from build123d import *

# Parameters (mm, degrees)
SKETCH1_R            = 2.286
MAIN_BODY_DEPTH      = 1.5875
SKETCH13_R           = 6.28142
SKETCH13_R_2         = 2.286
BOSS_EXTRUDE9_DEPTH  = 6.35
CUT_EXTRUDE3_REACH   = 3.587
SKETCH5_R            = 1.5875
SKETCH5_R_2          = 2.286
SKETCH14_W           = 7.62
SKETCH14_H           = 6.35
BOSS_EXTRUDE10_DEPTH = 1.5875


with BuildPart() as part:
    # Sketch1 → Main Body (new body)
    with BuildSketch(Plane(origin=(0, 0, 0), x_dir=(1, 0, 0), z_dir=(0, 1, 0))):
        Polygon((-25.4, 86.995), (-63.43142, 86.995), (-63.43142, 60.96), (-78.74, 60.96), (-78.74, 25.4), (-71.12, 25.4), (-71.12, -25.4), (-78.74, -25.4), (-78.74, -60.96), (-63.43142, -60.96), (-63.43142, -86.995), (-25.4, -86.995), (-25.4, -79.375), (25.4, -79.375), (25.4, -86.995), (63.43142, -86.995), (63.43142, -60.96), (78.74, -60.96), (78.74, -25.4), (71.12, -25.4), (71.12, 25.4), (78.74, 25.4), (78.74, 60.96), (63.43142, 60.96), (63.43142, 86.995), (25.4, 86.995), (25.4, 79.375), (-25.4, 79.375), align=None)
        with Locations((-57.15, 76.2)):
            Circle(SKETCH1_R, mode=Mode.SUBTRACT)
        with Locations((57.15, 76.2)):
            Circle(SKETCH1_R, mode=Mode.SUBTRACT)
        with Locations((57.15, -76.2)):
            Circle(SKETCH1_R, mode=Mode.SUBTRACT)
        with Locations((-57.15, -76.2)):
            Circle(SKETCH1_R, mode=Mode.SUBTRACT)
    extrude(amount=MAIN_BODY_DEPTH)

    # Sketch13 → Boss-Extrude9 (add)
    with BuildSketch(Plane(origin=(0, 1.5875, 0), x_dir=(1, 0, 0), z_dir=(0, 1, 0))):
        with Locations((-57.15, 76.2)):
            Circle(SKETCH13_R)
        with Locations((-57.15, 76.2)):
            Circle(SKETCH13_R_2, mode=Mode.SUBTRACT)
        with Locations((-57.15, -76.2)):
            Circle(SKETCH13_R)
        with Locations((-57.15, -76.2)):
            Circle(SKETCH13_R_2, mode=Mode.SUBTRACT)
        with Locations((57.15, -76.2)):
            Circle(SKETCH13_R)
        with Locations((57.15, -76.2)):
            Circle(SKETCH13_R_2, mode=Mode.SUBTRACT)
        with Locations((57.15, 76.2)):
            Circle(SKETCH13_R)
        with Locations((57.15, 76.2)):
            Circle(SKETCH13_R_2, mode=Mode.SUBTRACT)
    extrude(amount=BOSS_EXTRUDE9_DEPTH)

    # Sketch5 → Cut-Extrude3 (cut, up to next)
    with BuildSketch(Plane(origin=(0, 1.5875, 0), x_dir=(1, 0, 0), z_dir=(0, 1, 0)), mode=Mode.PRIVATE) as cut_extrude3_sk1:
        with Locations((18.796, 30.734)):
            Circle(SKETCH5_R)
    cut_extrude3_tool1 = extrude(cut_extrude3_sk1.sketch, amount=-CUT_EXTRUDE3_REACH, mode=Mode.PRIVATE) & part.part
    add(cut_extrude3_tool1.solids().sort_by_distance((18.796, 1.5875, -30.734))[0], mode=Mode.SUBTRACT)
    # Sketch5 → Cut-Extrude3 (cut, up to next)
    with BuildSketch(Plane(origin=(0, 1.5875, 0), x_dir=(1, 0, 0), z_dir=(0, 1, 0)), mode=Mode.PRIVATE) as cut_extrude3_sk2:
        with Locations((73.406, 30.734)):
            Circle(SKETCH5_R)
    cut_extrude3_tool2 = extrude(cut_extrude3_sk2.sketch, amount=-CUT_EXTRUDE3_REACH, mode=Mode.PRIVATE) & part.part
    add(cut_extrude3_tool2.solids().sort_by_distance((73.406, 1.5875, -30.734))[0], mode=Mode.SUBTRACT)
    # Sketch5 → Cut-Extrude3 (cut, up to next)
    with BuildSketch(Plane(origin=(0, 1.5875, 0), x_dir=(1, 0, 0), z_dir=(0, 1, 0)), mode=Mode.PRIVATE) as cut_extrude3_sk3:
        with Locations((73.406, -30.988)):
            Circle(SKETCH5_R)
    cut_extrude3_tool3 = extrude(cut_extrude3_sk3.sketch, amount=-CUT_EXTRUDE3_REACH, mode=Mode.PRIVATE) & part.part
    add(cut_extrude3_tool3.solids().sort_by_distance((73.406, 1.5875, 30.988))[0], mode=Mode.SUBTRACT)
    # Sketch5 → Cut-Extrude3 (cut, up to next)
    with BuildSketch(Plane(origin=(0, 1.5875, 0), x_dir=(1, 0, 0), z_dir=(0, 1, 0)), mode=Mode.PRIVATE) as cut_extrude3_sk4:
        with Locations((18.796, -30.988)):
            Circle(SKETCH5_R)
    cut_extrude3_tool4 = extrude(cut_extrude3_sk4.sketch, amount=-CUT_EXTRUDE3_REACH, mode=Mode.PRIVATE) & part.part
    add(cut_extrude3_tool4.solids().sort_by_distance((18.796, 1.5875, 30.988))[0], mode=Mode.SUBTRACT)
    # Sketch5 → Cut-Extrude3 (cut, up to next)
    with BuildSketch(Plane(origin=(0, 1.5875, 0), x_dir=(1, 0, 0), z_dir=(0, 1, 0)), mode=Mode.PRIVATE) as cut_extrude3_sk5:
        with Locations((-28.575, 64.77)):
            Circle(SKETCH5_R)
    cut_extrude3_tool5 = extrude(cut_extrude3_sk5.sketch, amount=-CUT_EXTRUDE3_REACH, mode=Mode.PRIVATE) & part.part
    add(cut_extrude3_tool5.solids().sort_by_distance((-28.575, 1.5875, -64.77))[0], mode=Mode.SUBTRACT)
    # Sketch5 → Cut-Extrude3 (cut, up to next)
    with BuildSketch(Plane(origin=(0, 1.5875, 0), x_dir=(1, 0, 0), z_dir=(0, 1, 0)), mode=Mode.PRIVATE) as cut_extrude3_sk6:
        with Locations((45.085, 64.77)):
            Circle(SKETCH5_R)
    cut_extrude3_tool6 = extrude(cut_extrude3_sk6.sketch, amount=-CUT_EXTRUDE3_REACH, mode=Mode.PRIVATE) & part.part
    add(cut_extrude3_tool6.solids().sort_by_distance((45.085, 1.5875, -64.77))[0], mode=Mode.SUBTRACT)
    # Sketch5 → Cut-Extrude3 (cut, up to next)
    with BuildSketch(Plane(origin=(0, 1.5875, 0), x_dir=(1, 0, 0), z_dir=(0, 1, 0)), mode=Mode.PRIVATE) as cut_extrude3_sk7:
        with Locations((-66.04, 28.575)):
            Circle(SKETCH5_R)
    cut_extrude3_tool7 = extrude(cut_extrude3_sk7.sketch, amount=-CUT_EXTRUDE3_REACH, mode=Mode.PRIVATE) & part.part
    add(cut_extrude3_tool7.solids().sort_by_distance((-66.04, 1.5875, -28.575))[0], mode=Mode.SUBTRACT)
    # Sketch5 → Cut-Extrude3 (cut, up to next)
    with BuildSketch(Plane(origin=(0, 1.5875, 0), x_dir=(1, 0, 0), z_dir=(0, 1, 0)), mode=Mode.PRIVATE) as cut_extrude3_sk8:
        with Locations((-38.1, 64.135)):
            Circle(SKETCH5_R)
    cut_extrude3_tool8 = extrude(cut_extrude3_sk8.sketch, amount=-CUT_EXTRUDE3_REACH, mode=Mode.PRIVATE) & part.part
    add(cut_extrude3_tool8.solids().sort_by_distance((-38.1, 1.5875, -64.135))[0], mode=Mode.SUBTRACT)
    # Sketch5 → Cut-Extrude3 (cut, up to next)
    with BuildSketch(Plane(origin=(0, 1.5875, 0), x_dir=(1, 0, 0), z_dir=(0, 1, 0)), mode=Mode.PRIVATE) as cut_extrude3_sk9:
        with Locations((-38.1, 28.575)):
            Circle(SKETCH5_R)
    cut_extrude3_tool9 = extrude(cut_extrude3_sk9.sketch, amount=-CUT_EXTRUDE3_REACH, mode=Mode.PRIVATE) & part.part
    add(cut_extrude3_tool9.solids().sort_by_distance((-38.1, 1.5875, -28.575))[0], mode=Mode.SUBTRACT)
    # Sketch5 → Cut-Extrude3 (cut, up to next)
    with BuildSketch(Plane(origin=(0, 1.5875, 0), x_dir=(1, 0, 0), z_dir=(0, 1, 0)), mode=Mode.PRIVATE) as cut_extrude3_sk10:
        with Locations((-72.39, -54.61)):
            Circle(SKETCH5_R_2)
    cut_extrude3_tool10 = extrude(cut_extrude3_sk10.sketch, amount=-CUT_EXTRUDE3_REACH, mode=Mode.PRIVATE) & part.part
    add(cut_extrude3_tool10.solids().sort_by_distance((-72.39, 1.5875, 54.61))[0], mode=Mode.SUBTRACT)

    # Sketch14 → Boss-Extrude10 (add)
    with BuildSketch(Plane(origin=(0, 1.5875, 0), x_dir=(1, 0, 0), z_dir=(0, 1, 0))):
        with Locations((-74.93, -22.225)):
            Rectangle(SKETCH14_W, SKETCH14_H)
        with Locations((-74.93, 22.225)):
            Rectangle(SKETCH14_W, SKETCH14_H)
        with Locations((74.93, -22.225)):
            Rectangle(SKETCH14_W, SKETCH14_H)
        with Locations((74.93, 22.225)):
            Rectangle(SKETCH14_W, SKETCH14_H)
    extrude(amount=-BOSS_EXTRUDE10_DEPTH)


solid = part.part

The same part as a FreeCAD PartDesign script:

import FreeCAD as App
import Part
import Sketcher
from FreeCAD import Vector
Q = App.Units.Quantity


def add_polygon(sketch, points):
    """Adds a closed chain of lines whose ends are joined by coincident constraints."""
    first, n = sketch.GeometryCount, len(points)
    for a, b in zip(points, points[1:] + points[:1]):
        sketch.addGeometry(Part.LineSegment(App.Vector(*a, 0), App.Vector(*b, 0)), False)
    for i in range(n):
        sketch.addConstraint(Sketcher.Constraint("Coincident", first + i, 2, first + (i + 1) % n, 1))

doc = App.newDocument("Part")
body = doc.addObject("PartDesign::Body", "Body")

# Sketch on XZ plane
sketch1 = doc.addObject("Sketcher::SketchObject", "Sketch")
body.addObject(sketch1)
sketch1.AttachmentSupport = (doc.XZ_Plane, [""])
sketch1.MapMode = "FlatFace"
add_polygon(sketch1, [(-25.4, -87), (-63.4, -87), (-63.4, -61), (-78.7, -61), (-78.7, -25.4), (-71.1, -25.4), (-71.1, 25.4), (-78.7, 25.4), (-78.7, 61), (-63.4, 61), (-63.4, 87), (-25.4, 87), (-25.4, 79.4), (25.4, 79.4), (25.4, 87), (63.4, 87), (63.4, 61), (78.7, 61), (78.7, 25.4), (71.1, 25.4), (71.1, -25.4), (78.7, -25.4), (78.7, -61), (63.4, -61), (63.4, -87), (25.4, -87), (25.4, -79.4), (-25.4, -79.4)])  # lines 0-27
sketch1.addGeometry(Part.Circle(Vector(-57.1, 76.2, 0), Vector(0, 0, 1), 2.3), False)  # 28
sketch1.addGeometry(Part.Circle(Vector(57.1, 76.2, 0), Vector(0, 0, 1), 2.3), False)  # 29
sketch1.addGeometry(Part.Circle(Vector(-57.1, -76.2, 0), Vector(0, 0, 1), 2.3), False)  # 30
sketch1.addGeometry(Part.Circle(Vector(57.1, -76.2, 0), Vector(0, 0, 1), 2.3), False)  # 31
sketch1.addConstraint([
    Sketcher.Constraint("Horizontal", 0),
    Sketcher.Constraint("Vertical", 1),
    Sketcher.Constraint("Horizontal", 2),
    Sketcher.Constraint("Vertical", 3),
    Sketcher.Constraint("Horizontal", 4),
    Sketcher.Constraint("Vertical", 5),
    Sketcher.Constraint("Horizontal", 6),
    Sketcher.Constraint("Vertical", 7),
    Sketcher.Constraint("Horizontal", 8),
    Sketcher.Constraint("Vertical", 9),
    Sketcher.Constraint("Horizontal", 10),
    Sketcher.Constraint("Vertical", 11),
    Sketcher.Constraint("Horizontal", 12),
    Sketcher.Constraint("Vertical", 13),
    Sketcher.Constraint("Horizontal", 14),
    Sketcher.Constraint("Vertical", 15),
    Sketcher.Constraint("Horizontal", 16),
    Sketcher.Constraint("Vertical", 17),
    Sketcher.Constraint("Horizontal", 18),
    Sketcher.Constraint("Vertical", 19),
    Sketcher.Constraint("Horizontal", 20),
    Sketcher.Constraint("Vertical", 21),
    Sketcher.Constraint("Horizontal", 22),
    Sketcher.Constraint("Vertical", 23),
    Sketcher.Constraint("Horizontal", 24),
    Sketcher.Constraint("Vertical", 25),
    Sketcher.Constraint("Horizontal", 26),
    Sketcher.Constraint("Vertical", 27),
    Sketcher.Constraint("Equal", 28, 29),
    Sketcher.Constraint("Equal", 29, 30),
    Sketcher.Constraint("Equal", 30, 31),
    Sketcher.Constraint("Symmetric", 29, 3, 30, 3, -1, 1),
    Sketcher.Constraint("Symmetric", 28, 3, 31, 3, -1, 1),
    Sketcher.Constraint("Symmetric", 0, 2, 14, 2, -1, 1),
    Sketcher.Constraint("Symmetric", 2, 2, 16, 2, -1, 1),
    Sketcher.Constraint("Symmetric", 4, 2, 18, 2, -1, 1),
    Sketcher.Constraint("Symmetric", 6, 2, 20, 2, -1, 1),
    Sketcher.Constraint("Symmetric", 8, 2, 22, 2, -1, 1),
    Sketcher.Constraint("Symmetric", 10, 2, 24, 2, -1, 1),
    Sketcher.Constraint("Symmetric", 12, 2, 26, 2, -1, 1),
    Sketcher.Constraint("Symmetric", 28, 3, 29, 3, -2),
    Sketcher.Constraint("Symmetric", 10, 2, 13, 2, -2),
    Sketcher.Constraint("Symmetric", 8, 2, 15, 2, -2),
    Sketcher.Constraint("Symmetric", 6, 2, 17, 2, -2),
    Sketcher.Constraint("Equal", 26, 5),
    Sketcher.Constraint("Equal", 20, 11),
    Sketcher.Constraint("Diameter", 28, Q("0.18 in")),
    Sketcher.Constraint("DistanceX", 12, 1, 12, 2, Q("2 in")),
    Sketcher.Constraint("DistanceX", 4, 1, 4, 2, Q("0.3 in")),
    Sketcher.Constraint("DistanceY", 3, 1, 3, 2, Q("1.4 in")),
    Sketcher.Constraint("DistanceY", -1, 1, 28, 3, Q("3 in")),
    Sketcher.Constraint("DistanceX", 2, 2, -1, 1, Q("3.1 in")),
    Sketcher.Constraint("DistanceX", 28, 3, 29, 3, Q("4.5 in")),
    Sketcher.Constraint("DistanceY", 1, 1, 1, 2, Q("1.025 in")),
    Sketcher.Constraint("DistanceX", 0, 2, 0, 1, Q("1.4973 in")),
])
pad1 = doc.addObject("PartDesign::Pad", "Pad")
body.addObject(pad1)
pad1.Profile = sketch1
pad1.Length = Q("0.0625 in")
pad1.Reversed = True

# Sketch on XZ plane
sketch2 = doc.addObject("Sketcher::SketchObject", "Sketch001")
body.addObject(sketch2)
sketch2.AttachmentSupport = (doc.XZ_Plane, [""])
sketch2.MapMode = "FlatFace"
sketch2.AttachmentOffset = App.Placement(Vector(0, 0, -0.0625 * 25.4), App.Rotation())
sketch2.addGeometry([
    Part.Circle(Vector(-57.1, -76.2, 0), Vector(0, 0, 1), 6.3),  # 0
    Part.Circle(Vector(-57.1, -76.2, 0), Vector(0, 0, 1), 2.3),  # 1
    Part.Circle(Vector(-57.1, 76.2, 0), Vector(0, 0, 1), 6.3),  # 2
    Part.Circle(Vector(-57.1, 76.2, 0), Vector(0, 0, 1), 2.3),  # 3
    Part.Circle(Vector(57.1, 76.2, 0), Vector(0, 0, 1), 6.3),  # 4
    Part.Circle(Vector(57.1, 76.2, 0), Vector(0, 0, 1), 2.3),  # 5
    Part.Circle(Vector(57.1, -76.2, 0), Vector(0, 0, 1), 6.3),  # 6
    Part.Circle(Vector(57.1, -76.2, 0), Vector(0, 0, 1), 2.3),  # 7
], False)
sketch2.addConstraint([
    Sketcher.Constraint("Coincident", 1, 3, 0, 3),
    Sketcher.Constraint("Coincident", 3, 3, 2, 3),
    Sketcher.Constraint("Coincident", 5, 3, 4, 3),
    Sketcher.Constraint("Coincident", 7, 3, 6, 3),
    Sketcher.Constraint("Equal", 0, 2),
    Sketcher.Constraint("Equal", 1, 3),
    Sketcher.Constraint("Equal", 2, 4),
    Sketcher.Constraint("Equal", 3, 5),
    Sketcher.Constraint("Equal", 4, 6),
    Sketcher.Constraint("Equal", 5, 7),
    Sketcher.Constraint("Symmetric", 0, 3, 4, 3, -1, 1),
    Sketcher.Constraint("Symmetric", 2, 3, 6, 3, -1, 1),
    Sketcher.Constraint("Symmetric", 2, 3, 4, 3, -2),
    Sketcher.Constraint("Diameter", 1, Q("0.18 in")),
    Sketcher.Constraint("DistanceY", 0, 3, -1, 1, Q("3 in")),
    Sketcher.Constraint("Diameter", 0, Q("0.4946 in")),
    Sketcher.Constraint("DistanceX", 2, 3, 4, 3, Q("4.5 in")),
])
pad2 = doc.addObject("PartDesign::Pad", "Pad001")
body.addObject(pad2)
pad2.Profile = sketch2
pad2.Length = Q("0.25 in")
pad2.Reversed = True

# Sketch on XZ plane
sketch3 = doc.addObject("Sketcher::SketchObject", "Sketch002")
body.addObject(sketch3)
sketch3.AttachmentSupport = (doc.XZ_Plane, [""])
sketch3.MapMode = "FlatFace"
sketch3.AttachmentOffset = App.Placement(Vector(0, 0, -0.0625 * 25.4), App.Rotation())
sketch3.addGeometry(Part.Circle(Vector(18.8, -30.7, 0), Vector(0, 0, 1), 1.6), False)
sketch3.addConstraint([
    Sketcher.Constraint("Diameter", 0, Q("0.125 in")),
    Sketcher.Constraint("DistanceX", -1, 1, 0, 3, Q("0.74 in")),
    Sketcher.Constraint("DistanceY", 0, 3, -1, 1, Q("1.21 in")),
])
pocket1 = doc.addObject("PartDesign::Pocket", "Pocket")
body.addObject(pocket1)
pocket1.Profile = sketch3
pocket1.Type = "UpToFirst"
pocket1.Reversed = True

# Sketch on XZ plane
sketch4 = doc.addObject("Sketcher::SketchObject", "Sketch003")
body.addObject(sketch4)
sketch4.AttachmentSupport = (doc.XZ_Plane, [""])
sketch4.MapMode = "FlatFace"
sketch4.AttachmentOffset = App.Placement(Vector(0, 0, -0.0625 * 25.4), App.Rotation())
sketch4.addGeometry(Part.Circle(Vector(73.4, -30.7, 0), Vector(0, 0, 1), 1.6), False)
sketch4.addConstraint([
    Sketcher.Constraint("Diameter", 0, Q("0.125 in")),
    Sketcher.Constraint("DistanceX", -1, 1, 0, 3, Q("2.89 in")),
    Sketcher.Constraint("DistanceY", 0, 3, -1, 1, Q("1.21 in")),
])
pocket2 = doc.addObject("PartDesign::Pocket", "Pocket001")
body.addObject(pocket2)
pocket2.Profile = sketch4
pocket2.Type = "UpToFirst"
pocket2.Reversed = True

# Sketch on XZ plane
sketch5 = doc.addObject("Sketcher::SketchObject", "Sketch004")
body.addObject(sketch5)
sketch5.AttachmentSupport = (doc.XZ_Plane, [""])
sketch5.MapMode = "FlatFace"
sketch5.AttachmentOffset = App.Placement(Vector(0, 0, -0.0625 * 25.4), App.Rotation())
sketch5.addGeometry(Part.Circle(Vector(73.4, 31, 0), Vector(0, 0, 1), 1.6), False)
sketch5.addConstraint([
    Sketcher.Constraint("Diameter", 0, Q("0.125 in")),
    Sketcher.Constraint("DistanceX", -1, 1, 0, 3, Q("2.89 in")),
    Sketcher.Constraint("DistanceY", -1, 1, 0, 3, Q("1.22 in")),
])
pocket3 = doc.addObject("PartDesign::Pocket", "Pocket002")
body.addObject(pocket3)
pocket3.Profile = sketch5
pocket3.Type = "UpToFirst"
pocket3.Reversed = True

# Sketch on XZ plane
sketch6 = doc.addObject("Sketcher::SketchObject", "Sketch005")
body.addObject(sketch6)
sketch6.AttachmentSupport = (doc.XZ_Plane, [""])
sketch6.MapMode = "FlatFace"
sketch6.AttachmentOffset = App.Placement(Vector(0, 0, -0.0625 * 25.4), App.Rotation())
sketch6.addGeometry(Part.Circle(Vector(18.8, 31, 0), Vector(0, 0, 1), 1.6), False)
sketch6.addConstraint([
    Sketcher.Constraint("Diameter", 0, Q("0.125 in")),
    Sketcher.Constraint("DistanceX", -1, 1, 0, 3, Q("0.74 in")),
    Sketcher.Constraint("DistanceY", -1, 1, 0, 3, Q("1.22 in")),
])
pocket4 = doc.addObject("PartDesign::Pocket", "Pocket003")
body.addObject(pocket4)
pocket4.Profile = sketch6
pocket4.Type = "UpToFirst"
pocket4.Reversed = True

# Sketch on XZ plane
sketch7 = doc.addObject("Sketcher::SketchObject", "Sketch006")
body.addObject(sketch7)
sketch7.AttachmentSupport = (doc.XZ_Plane, [""])
sketch7.MapMode = "FlatFace"
sketch7.AttachmentOffset = App.Placement(Vector(0, 0, -0.0625 * 25.4), App.Rotation())
sketch7.addGeometry(Part.Circle(Vector(-28.6, -64.8, 0), Vector(0, 0, 1), 1.6), False)
sketch7.addConstraint([
    Sketcher.Constraint("Diameter", 0, Q("0.125 in")),
    Sketcher.Constraint("DistanceY", 0, 3, -1, 1, Q("2.55 in")),
    Sketcher.Constraint("DistanceX", 0, 3, -1, 1, Q("1.125 in")),
])
pocket5 = doc.addObject("PartDesign::Pocket", "Pocket004")
body.addObject(pocket5)
pocket5.Profile = sketch7
pocket5.Type = "UpToFirst"
pocket5.Reversed = True

# Sketch on XZ plane
sketch8 = doc.addObject("Sketcher::SketchObject", "Sketch007")
body.addObject(sketch8)
sketch8.AttachmentSupport = (doc.XZ_Plane, [""])
sketch8.MapMode = "FlatFace"
sketch8.AttachmentOffset = App.Placement(Vector(0, 0, -0.0625 * 25.4), App.Rotation())
sketch8.addGeometry(Part.Circle(Vector(45.1, -64.8, 0), Vector(0, 0, 1), 1.6), False)
sketch8.addConstraint([
    Sketcher.Constraint("Diameter", 0, Q("0.125 in")),
    Sketcher.Constraint("DistanceY", 0, 3, -1, 1, Q("2.55 in")),
    Sketcher.Constraint("DistanceX", -1, 1, 0, 3, Q("1.775 in")),
])
pocket6 = doc.addObject("PartDesign::Pocket", "Pocket005")
body.addObject(pocket6)
pocket6.Profile = sketch8
pocket6.Type = "UpToFirst"
pocket6.Reversed = True

# Sketch on XZ plane
sketch9 = doc.addObject("Sketcher::SketchObject", "Sketch008")
body.addObject(sketch9)
sketch9.AttachmentSupport = (doc.XZ_Plane, [""])
sketch9.MapMode = "FlatFace"
sketch9.AttachmentOffset = App.Placement(Vector(0, 0, -0.0625 * 25.4), App.Rotation())
sketch9.addGeometry(Part.Circle(Vector(-66, -28.6, 0), Vector(0, 0, 1), 1.6), False)
sketch9.addConstraint([
    Sketcher.Constraint("Diameter", 0, Q("0.125 in")),
    Sketcher.Constraint("DistanceX", 0, 3, -1, 1, Q("2.6 in")),
    Sketcher.Constraint("DistanceY", 0, 3, -1, 1, Q("1.125 in")),
])
pocket7 = doc.addObject("PartDesign::Pocket", "Pocket006")
body.addObject(pocket7)
pocket7.Profile = sketch9
pocket7.Type = "UpToFirst"
pocket7.Reversed = True

# Sketch on XZ plane
sketch10 = doc.addObject("Sketcher::SketchObject", "Sketch009")
body.addObject(sketch10)
sketch10.AttachmentSupport = (doc.XZ_Plane, [""])
sketch10.MapMode = "FlatFace"
sketch10.AttachmentOffset = App.Placement(Vector(0, 0, -0.0625 * 25.4), App.Rotation())
sketch10.addGeometry(Part.Circle(Vector(-38.1, -64.1, 0), Vector(0, 0, 1), 1.6), False)
sketch10.addConstraint([
    Sketcher.Constraint("Diameter", 0, Q("0.125 in")),
    Sketcher.Constraint("DistanceX", 0, 3, -1, 1, Q("1.5 in")),
    Sketcher.Constraint("DistanceY", 0, 3, -1, 1, Q("2.525 in")),
])
pocket8 = doc.addObject("PartDesign::Pocket", "Pocket007")
body.addObject(pocket8)
pocket8.Profile = sketch10
pocket8.Type = "UpToFirst"
pocket8.Reversed = True

# Sketch on XZ plane
sketch11 = doc.addObject("Sketcher::SketchObject", "Sketch010")
body.addObject(sketch11)
sketch11.AttachmentSupport = (doc.XZ_Plane, [""])
sketch11.MapMode = "FlatFace"
sketch11.AttachmentOffset = App.Placement(Vector(0, 0, -0.0625 * 25.4), App.Rotation())
sketch11.addGeometry(Part.Circle(Vector(-38.1, -28.6, 0), Vector(0, 0, 1), 1.6), False)
sketch11.addConstraint([
    Sketcher.Constraint("Diameter", 0, Q("0.125 in")),
    Sketcher.Constraint("DistanceX", 0, 3, -1, 1, Q("1.5 in")),
    Sketcher.Constraint("DistanceY", 0, 3, -1, 1, Q("1.125 in")),
])
pocket9 = doc.addObject("PartDesign::Pocket", "Pocket008")
body.addObject(pocket9)
pocket9.Profile = sketch11
pocket9.Type = "UpToFirst"
pocket9.Reversed = True

# Sketch on XZ plane
sketch12 = doc.addObject("Sketcher::SketchObject", "Sketch011")
body.addObject(sketch12)
sketch12.AttachmentSupport = (doc.XZ_Plane, [""])
sketch12.MapMode = "FlatFace"
sketch12.AttachmentOffset = App.Placement(Vector(0, 0, -0.0625 * 25.4), App.Rotation())
sketch12.addGeometry(Part.Circle(Vector(-72.4, 54.6, 0), Vector(0, 0, 1), 2.3), False)
sketch12.addConstraint([
    Sketcher.Constraint("Diameter", 0, Q("0.18 in")),
    Sketcher.Constraint("DistanceX", 0, 3, -1, 1, Q("2.85 in")),
    Sketcher.Constraint("DistanceY", -1, 1, 0, 3, Q("2.15 in")),
])
pocket10 = doc.addObject("PartDesign::Pocket", "Pocket009")
body.addObject(pocket10)
pocket10.Profile = sketch12
pocket10.Type = "UpToFirst"
pocket10.Reversed = True

# Sketch on XZ plane
sketch13 = doc.addObject("Sketcher::SketchObject", "Sketch012")
body.addObject(sketch13)
sketch13.AttachmentSupport = (doc.XZ_Plane, [""])
sketch13.MapMode = "FlatFace"
sketch13.AttachmentOffset = App.Placement(Vector(0, 0, -0.0625 * 25.4), App.Rotation())
add_polygon(sketch13, [(-79, 19), (-79, 25), (-71, 25), (-71, 19)])  # lines 0-3
add_polygon(sketch13, [(-79, -25), (-79, -19), (-71, -19), (-71, -25)])  # lines 4-7
add_polygon(sketch13, [(71, 19), (71, 25), (79, 25), (79, 19)])  # lines 8-11
add_polygon(sketch13, [(71, -25), (71, -19), (79, -19), (79, -25)])  # lines 12-15
sketch13.addConstraint([
    Sketcher.Constraint("Vertical", 0),
    Sketcher.Constraint("Horizontal", 1),
    Sketcher.Constraint("Vertical", 2),
    Sketcher.Constraint("Horizontal", 3),
    Sketcher.Constraint("Vertical", 4),
    Sketcher.Constraint("Horizontal", 5),
    Sketcher.Constraint("Vertical", 6),
    Sketcher.Constraint("Horizontal", 7),
    Sketcher.Constraint("Vertical", 8),
    Sketcher.Constraint("Horizontal", 9),
    Sketcher.Constraint("Vertical", 10),
    Sketcher.Constraint("Horizontal", 11),
    Sketcher.Constraint("Vertical", 12),
    Sketcher.Constraint("Horizontal", 13),
    Sketcher.Constraint("Vertical", 14),
    Sketcher.Constraint("Horizontal", 15),
    Sketcher.Constraint("Symmetric", 6, 2, 8, 2, -1, 1),
    Sketcher.Constraint("Symmetric", 4, 2, 10, 2, -1, 1),
    Sketcher.Constraint("Symmetric", 2, 2, 12, 2, -1, 1),
    Sketcher.Constraint("Symmetric", 0, 2, 14, 2, -1, 1),
    Sketcher.Constraint("Symmetric", 1, 2, 8, 2, -2),
    Sketcher.Constraint("Symmetric", 3, 2, 10, 2, -2),
    Sketcher.Constraint("DistanceX", 1, 1, 1, 2, Q("0.3 in")),
    Sketcher.Constraint("DistanceY", -1, 1, 0, 2, Q("1 in")),
    Sketcher.Constraint("DistanceY", 0, 1, 0, 2, Q("0.25 in")),
    Sketcher.Constraint("DistanceX", 0, 2, -1, 1, Q("3.1 in")),
])
pad3 = doc.addObject("PartDesign::Pad", "Pad002")
body.addObject(pad3)
pad3.Profile = sketch13
pad3.Length = Q("0.0625 in")

doc.recompute()
